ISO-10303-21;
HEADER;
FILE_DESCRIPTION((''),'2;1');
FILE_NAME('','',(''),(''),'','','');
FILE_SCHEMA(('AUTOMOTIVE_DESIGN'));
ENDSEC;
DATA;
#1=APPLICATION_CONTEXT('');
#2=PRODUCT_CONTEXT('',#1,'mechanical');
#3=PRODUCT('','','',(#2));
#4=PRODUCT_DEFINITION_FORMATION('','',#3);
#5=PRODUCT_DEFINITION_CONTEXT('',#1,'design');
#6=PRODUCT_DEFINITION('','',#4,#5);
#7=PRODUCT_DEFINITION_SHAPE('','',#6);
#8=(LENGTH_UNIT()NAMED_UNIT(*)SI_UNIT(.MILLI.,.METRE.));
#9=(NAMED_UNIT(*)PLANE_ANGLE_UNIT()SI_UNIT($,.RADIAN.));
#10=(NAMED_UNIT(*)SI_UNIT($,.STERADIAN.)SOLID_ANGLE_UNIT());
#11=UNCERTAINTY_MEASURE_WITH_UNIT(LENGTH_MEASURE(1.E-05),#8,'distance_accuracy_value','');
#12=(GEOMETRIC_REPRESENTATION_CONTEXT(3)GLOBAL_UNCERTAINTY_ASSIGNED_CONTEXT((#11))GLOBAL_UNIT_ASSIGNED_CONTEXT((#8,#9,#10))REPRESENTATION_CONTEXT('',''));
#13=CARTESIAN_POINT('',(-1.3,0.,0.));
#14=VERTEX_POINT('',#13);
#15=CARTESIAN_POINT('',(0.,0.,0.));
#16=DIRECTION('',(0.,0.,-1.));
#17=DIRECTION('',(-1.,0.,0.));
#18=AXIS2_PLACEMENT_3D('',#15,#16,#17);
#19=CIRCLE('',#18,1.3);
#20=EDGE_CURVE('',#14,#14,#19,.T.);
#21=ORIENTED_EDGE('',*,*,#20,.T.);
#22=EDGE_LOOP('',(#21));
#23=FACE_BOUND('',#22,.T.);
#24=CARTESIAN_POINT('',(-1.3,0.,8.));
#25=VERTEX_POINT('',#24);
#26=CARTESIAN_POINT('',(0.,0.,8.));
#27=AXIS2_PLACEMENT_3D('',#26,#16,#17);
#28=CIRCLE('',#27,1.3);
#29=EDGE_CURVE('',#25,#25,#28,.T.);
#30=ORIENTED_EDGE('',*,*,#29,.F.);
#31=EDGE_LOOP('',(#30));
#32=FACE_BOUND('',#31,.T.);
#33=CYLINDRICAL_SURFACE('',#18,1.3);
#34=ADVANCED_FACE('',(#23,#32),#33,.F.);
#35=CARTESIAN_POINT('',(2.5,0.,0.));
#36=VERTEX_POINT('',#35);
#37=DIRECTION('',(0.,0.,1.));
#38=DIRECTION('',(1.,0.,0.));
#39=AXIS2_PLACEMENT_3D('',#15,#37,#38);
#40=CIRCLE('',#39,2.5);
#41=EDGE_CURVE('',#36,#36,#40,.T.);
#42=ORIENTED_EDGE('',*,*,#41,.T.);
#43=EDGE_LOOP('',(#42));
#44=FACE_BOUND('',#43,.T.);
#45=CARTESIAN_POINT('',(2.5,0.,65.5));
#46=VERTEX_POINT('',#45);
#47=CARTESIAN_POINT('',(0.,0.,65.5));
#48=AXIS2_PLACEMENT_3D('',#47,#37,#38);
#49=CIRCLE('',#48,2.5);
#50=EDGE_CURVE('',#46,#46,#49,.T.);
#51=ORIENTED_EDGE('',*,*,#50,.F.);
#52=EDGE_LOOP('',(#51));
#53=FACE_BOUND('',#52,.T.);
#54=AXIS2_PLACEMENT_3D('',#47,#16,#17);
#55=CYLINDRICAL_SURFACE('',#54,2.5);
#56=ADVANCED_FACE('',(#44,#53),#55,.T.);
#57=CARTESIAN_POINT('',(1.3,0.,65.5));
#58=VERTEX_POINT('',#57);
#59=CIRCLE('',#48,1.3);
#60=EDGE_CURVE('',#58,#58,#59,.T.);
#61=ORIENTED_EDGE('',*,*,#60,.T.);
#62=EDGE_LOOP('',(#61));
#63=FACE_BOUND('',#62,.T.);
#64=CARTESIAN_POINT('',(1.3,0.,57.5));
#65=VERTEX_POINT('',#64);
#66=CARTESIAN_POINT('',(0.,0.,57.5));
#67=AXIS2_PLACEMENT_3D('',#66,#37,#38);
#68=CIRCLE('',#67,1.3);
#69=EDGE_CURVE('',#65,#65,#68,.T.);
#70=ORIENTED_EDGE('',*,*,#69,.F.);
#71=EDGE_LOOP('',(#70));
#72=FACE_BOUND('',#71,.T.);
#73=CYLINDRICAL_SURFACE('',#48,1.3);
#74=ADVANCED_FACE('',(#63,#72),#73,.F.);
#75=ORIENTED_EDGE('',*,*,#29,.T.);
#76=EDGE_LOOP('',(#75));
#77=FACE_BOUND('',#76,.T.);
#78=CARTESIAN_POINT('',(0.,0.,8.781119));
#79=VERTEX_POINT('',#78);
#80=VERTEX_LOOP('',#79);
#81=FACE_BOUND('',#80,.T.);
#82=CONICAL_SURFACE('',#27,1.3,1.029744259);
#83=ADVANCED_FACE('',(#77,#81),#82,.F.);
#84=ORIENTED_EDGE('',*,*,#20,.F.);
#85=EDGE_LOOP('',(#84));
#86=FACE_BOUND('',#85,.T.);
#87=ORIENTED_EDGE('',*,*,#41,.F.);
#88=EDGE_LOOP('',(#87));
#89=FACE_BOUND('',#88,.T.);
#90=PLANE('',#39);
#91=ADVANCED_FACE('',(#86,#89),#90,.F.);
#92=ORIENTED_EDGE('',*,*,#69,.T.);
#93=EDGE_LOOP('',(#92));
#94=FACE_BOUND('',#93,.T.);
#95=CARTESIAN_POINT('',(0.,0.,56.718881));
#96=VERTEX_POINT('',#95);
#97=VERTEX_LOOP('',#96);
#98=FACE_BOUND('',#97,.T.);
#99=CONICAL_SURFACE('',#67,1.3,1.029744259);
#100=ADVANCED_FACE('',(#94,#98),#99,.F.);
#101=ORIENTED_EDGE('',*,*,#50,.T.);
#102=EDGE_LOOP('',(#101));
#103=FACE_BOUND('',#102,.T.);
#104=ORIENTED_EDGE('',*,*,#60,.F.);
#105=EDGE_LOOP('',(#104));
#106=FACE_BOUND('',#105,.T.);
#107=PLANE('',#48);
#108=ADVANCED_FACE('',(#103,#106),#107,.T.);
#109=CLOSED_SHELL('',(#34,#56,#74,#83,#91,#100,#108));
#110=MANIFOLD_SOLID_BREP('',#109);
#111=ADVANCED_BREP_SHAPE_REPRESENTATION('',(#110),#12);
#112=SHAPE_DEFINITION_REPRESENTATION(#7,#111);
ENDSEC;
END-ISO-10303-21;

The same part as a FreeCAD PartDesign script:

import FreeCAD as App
import Part
import Sketcher

doc = App.newDocument("Part")
body = doc.addObject("PartDesign::Body", "Body")

# Sketch on XY plane
sketch1 = body.newObject("Sketcher::SketchObject", "Sketch")
sketch1.AttachmentSupport = (doc.getObject("XY_Plane"), [""])
sketch1.MapMode = "FlatFace"
sketch1.addGeometry(Part.Circle(App.Vector(0, 0, 0), App.Vector(0, 0, 1), 2.5), False)
sketch1.addConstraint(Sketcher.Constraint("Coincident", 0, 3, -1, 1))
sketch1.addConstraint(Sketcher.Constraint("Diameter", 0, 5.0))
pad1 = body.newObject("PartDesign::Pad", "Pad")
pad1.Profile = sketch1
pad1.Length = 65.5

# Sketch on XY plane
sketch2 = body.newObject("Sketcher::SketchObject", "Sketch001")
sketch2.AttachmentSupport = (doc.getObject("XY_Plane"), [""])
sketch2.MapMode = "FlatFace"
sketch2.AttachmentOffset = App.Placement(App.Vector(0, 0, 65.5), App.Rotation())
sketch2.addGeometry(Part.Circle(App.Vector(0, 0, 0), App.Vector(0, 0, 1), 1.3), False)
sketch2.addConstraint(Sketcher.Constraint("Coincident", 0, 3, -1, 1))
sketch2.addConstraint(Sketcher.Constraint("Diameter", 0, 2.6))
doc.recompute()
hole = body.newObject("PartDesign::Hole", "Hole")
hole.Profile = sketch2
hole.ThreadType = "None"
hole.Diameter = 2.6
hole.DepthType = "Dimension"
hole.Depth = 8
hole.DrillPoint = "Angled"
hole.DrillPointAngle = 118

# Sketch on XY plane
sketch3 = body.newObject("Sketcher::SketchObject", "Sketch002")
sketch3.AttachmentSupport = (doc.getObject("XY_Plane"), [""])
sketch3.MapMode = "FlatFace"
sketch3.addGeometry(Part.Circle(App.Vector(0, 0, 0), App.Vector(0, 0, 1), 1.3), False)
sketch3.addConstraint(Sketcher.Constraint("Coincident", 0, 3, -1, 1))
sketch3.addConstraint(Sketcher.Constraint("Diameter", 0, 2.6))
doc.recompute()
hole2 = body.newObject("PartDesign::Hole", "Hole001")
hole2.Profile = sketch3
hole2.ThreadType = "None"
hole2.Diameter = 2.6
hole2.DepthType = "Dimension"
hole2.Depth = 8
hole2.DrillPoint = "Angled"
hole2.DrillPointAngle = 118
hole2.Reversed = True

doc.recompute()
